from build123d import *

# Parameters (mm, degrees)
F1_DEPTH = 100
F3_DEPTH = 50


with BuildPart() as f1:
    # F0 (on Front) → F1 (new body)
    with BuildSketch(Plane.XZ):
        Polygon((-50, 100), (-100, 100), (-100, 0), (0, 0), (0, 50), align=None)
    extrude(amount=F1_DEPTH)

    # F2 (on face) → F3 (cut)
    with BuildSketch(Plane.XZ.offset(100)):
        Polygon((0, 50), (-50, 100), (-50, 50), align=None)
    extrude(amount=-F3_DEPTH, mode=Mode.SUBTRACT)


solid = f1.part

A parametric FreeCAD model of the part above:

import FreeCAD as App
import Part
import Sketcher
from FreeCAD import Vector


def add_polygon(sketch, points):
    """Adds a closed chain of lines whose ends are joined by coincident constraints."""
    first, n = sketch.GeometryCount, len(points)
    for a, b in zip(points, points[1:] + points[:1]):
        sketch.addGeometry(Part.LineSegment(App.Vector(*a, 0), App.Vector(*b, 0)), False)
    for i in range(n):
        sketch.addConstraint(Sketcher.Constraint("Coincident", first + i, 2, first + (i + 1) % n, 1))

doc = App.newDocument("Part")
body = doc.addObject("PartDesign::Body", "Body")

sketch1 = body.newObject("Sketcher::SketchObject", "Sketch")
sketch1.AttachmentSupport = (doc.getObject("XZ_Plane"), [""])
sketch1.MapMode = "FlatFace"
add_polygon(sketch1, [(-50, 100), (-100, 100), (-100, 0), (0, 0), (0, 50)])
sketch1.addConstraint([
    Sketcher.Constraint("Horizontal", 0),
    Sketcher.Constraint("Vertical", 1),
    Sketcher.Constraint("Horizontal", 2),
    Sketcher.Constraint("Vertical", 3),
    Sketcher.Constraint("Coincident", 2, 2, -1, 1),
    Sketcher.Constraint("Equal", 2, 1),
    Sketcher.Constraint("Equal", 0, 3),
    Sketcher.Constraint("DistanceX", 0, 2, 0, 1, 50.0),
    Sketcher.Constraint("DistanceX", 2, 1, 2, 2, 100.0),
])
pad1 = body.newObject("PartDesign::Pad", "Pad")
pad1.Profile = sketch1
pad1.Length = 100

sketch2 = body.newObject("Sketcher::SketchObject", "Sketch001")
sketch2.AttachmentSupport = (doc.getObject("XZ_Plane"), [""])
sketch2.MapMode = "FlatFace"
sketch2.AttachmentOffset = App.Placement(Vector(0, 0, 100), App.Rotation())
add_polygon(sketch2, [(0, 50), (-50, 100), (-50, 50)])
sketch2.addConstraint([
    Sketcher.Constraint("Vertical", 1),
    Sketcher.Constraint("Horizontal", 2),
    Sketcher.Constraint("PointOnObject", 2, 2, -2),
    Sketcher.Constraint("Equal", 2, 1),
    Sketcher.Constraint("DistanceX", 2, 1, 2, 2, 50.0),
    Sketcher.Constraint("DistanceY", -1, 1, 0, 2, 100.0),
])
pocket1 = body.newObject("PartDesign::Pocket", "Pocket")
pocket1.Profile = sketch2
pocket1.Length = 50

doc.recompute()
